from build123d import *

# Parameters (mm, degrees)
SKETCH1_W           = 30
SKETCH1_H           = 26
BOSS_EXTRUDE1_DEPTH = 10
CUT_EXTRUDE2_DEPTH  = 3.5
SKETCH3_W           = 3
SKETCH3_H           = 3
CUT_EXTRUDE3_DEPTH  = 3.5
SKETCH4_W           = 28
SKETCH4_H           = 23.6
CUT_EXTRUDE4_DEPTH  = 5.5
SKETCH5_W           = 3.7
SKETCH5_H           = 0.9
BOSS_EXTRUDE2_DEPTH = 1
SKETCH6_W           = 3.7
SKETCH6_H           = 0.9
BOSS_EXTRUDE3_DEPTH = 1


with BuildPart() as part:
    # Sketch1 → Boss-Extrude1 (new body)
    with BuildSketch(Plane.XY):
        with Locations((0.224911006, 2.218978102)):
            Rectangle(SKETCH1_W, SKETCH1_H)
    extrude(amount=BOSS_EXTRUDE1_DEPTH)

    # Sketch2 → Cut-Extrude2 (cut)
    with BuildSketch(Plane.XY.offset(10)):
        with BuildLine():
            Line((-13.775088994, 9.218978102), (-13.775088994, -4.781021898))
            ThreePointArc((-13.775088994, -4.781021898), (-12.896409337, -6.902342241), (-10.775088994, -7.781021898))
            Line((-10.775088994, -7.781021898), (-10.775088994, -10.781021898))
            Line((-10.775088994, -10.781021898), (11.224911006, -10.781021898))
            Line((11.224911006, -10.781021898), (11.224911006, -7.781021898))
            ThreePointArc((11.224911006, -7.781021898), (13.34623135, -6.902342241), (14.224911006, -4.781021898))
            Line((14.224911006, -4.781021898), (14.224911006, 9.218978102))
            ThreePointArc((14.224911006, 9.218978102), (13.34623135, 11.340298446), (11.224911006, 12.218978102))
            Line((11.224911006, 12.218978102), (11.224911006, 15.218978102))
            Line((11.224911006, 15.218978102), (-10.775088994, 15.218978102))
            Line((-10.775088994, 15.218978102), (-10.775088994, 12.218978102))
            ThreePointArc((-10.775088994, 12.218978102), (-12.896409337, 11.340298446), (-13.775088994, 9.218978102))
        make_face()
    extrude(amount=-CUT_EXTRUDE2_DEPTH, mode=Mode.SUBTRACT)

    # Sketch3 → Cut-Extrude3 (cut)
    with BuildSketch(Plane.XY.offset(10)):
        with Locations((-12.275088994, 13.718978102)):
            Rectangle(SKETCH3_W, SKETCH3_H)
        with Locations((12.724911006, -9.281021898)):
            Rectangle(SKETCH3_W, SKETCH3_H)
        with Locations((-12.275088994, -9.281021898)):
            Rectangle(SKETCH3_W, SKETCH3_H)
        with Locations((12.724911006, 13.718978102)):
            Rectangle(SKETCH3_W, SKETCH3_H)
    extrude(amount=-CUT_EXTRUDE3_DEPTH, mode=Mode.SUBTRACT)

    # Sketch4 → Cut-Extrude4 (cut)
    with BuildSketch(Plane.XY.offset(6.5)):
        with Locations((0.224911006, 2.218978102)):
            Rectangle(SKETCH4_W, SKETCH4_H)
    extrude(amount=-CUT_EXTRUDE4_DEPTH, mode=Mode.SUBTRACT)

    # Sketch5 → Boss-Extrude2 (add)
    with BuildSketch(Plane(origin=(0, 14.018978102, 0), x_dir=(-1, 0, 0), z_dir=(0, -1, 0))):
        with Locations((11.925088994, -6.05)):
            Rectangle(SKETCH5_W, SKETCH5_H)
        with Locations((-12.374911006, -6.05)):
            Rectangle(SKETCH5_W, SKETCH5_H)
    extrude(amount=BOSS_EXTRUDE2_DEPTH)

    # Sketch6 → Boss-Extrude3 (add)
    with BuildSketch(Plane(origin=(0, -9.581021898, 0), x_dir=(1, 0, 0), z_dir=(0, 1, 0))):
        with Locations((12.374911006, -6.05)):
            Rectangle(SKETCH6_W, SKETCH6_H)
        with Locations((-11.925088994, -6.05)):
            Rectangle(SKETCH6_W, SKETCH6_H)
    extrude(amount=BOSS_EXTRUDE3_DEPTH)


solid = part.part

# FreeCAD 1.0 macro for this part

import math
import FreeCAD as App
import Part
import Sketcher
Q = App.Units.Quantity


def add_polygon(sketch, points):
    """Adds a closed chain of lines whose ends are joined by coincident constraints."""
    first, n = sketch.GeometryCount, len(points)
    for a, b in zip(points, points[1:] + points[:1]):
        sketch.addGeometry(Part.LineSegment(App.Vector(*a, 0), App.Vector(*b, 0)), False)
    for i in range(n):
        sketch.addConstraint(Sketcher.Constraint("Coincident", first + i, 2, first + (i + 1) % n, 1))

doc = App.newDocument("Part")
params = doc.addObject("Spreadsheet::Sheet", "Params")
for row, (alias, value) in enumerate([
    ("sketch1_width", "30 mm"),
    ("sketch1_height", "26 mm"),
    ("pad1_length", "10 mm"),
    ("sketch2_radius", "3 mm"),
    ("sketch2_width", "22 mm"),
    ("sketch2_height", "14 mm"),
    ("sketch2_height2", "3 mm"),
    ("pocket1_length", "3.5 mm"),
    ("sketch3_width", "3 mm"),
    ("pocket2_length", "3.5 mm"),
    ("sketch4_width", "28 mm"),
    ("sketch4_height", "23.6 mm"),
    ("pocket3_length", "5.5 mm"),
    ("sketch5_width", "3.7 mm"),
    ("sketch5_height", "0.9 mm"),
    ("pad2_length", "1 mm"),
    ("sketch6_width", "3.7 mm"),
    ("sketch6_height", "0.9 mm"),
    ("pad3_length", "1 mm"),
], start=1):
    params.set(f"A{row}", alias)
    params.set(f"B{row}", "=" + value)
    params.setAlias(f"B{row}", alias)

body = doc.addObject("PartDesign::Body", "Body")

# Sketch on XY plane
sketch1 = body.newObject("Sketcher::SketchObject", "Sketch")
sketch1.AttachmentSupport = (doc.getObject("XY_Plane"), [""])
sketch1.MapMode = "FlatFace"
add_polygon(sketch1, [(-14.775089, 15.218978), (-14.775089, -10.781022), (15.224911, -10.781022), (15.224911, 15.218978)])  # lines 0-3
sketch1.addConstraint(Sketcher.Constraint("Vertical", 0))
sketch1.addConstraint(Sketcher.Constraint("Horizontal", 1))
sketch1.addConstraint(Sketcher.Constraint("Vertical", 2))
sketch1.addConstraint(Sketcher.Constraint("Horizontal", 3))
sketch1.addConstraint(Sketcher.Constraint("DistanceX", 1, 1, 1, 2, Q("30 mm")))
sketch1.addConstraint(Sketcher.Constraint("DistanceY", 0, 2, 0, 1, Q("26 mm")))
sketch1.addConstraint(Sketcher.Constraint("DistanceX", 0, 2, -1, 1, Q("14.775089 mm")))
sketch1.addConstraint(Sketcher.Constraint("DistanceY", 0, 2, -1, 1, Q("10.781022 mm")))
sketch1.setExpression("Constraints[8]", "Params.sketch1_width")
sketch1.setExpression("Constraints[9]", "Params.sketch1_height")
pad1 = body.newObject("PartDesign::Pad", "Pad")
pad1.Profile = sketch1
pad1.setExpression("Length", "Params.pad1_length")

# Sketch on XY plane
sketch2 = body.newObject("Sketcher::SketchObject", "Sketch001")
sketch2.AttachmentSupport = (doc.getObject("XY_Plane"), [""])
sketch2.MapMode = "FlatFace"
sketch2.AttachmentOffset = App.Placement(App.Vector(0, 0, 10), App.Rotation())
sketch2.addGeometry(Part.LineSegment(App.Vector(-13.775089, 9.218978, 0), App.Vector(-13.775089, -4.781022, 0)), False)
sketch2.addGeometry(Part.ArcOfCircle(Part.Circle(App.Vector(-10.775089, -4.781022, 0), App.Vector(0, 0, 1), 3), math.radians(-180), math.radians(-90)), False)
sketch2.addGeometry(Part.LineSegment(App.Vector(-10.775089, -7.781022, 0), App.Vector(-10.775089, -10.781022, 0)), False)
sketch2.addGeometry(Part.LineSegment(App.Vector(-10.775089, -10.781022, 0), App.Vector(11.224911, -10.781022, 0)), False)
sketch2.addGeometry(Part.LineSegment(App.Vector(11.224911, -10.781022, 0), App.Vector(11.224911, -7.781022, 0)), False)
sketch2.addGeometry(Part.ArcOfCircle(Part.Circle(App.Vector(11.224911, -4.781022, 0), App.Vector(0, 0, 1), 3), math.radians(-90), math.radians(0)), False)
sketch2.addGeometry(Part.LineSegment(App.Vector(14.224911, -4.781022, 0), App.Vector(14.224911, 9.218978, 0)), False)
sketch2.addGeometry(Part.ArcOfCircle(Part.Circle(App.Vector(11.224911, 9.218978, 0), App.Vector(0, 0, 1), 3), math.radians(0), math.radians(90)), False)
sketch2.addGeometry(Part.LineSegment(App.Vector(11.224911, 12.218978, 0), App.Vector(11.224911, 15.218978, 0)), False)
sketch2.addGeometry(Part.LineSegment(App.Vector(11.224911, 15.218978, 0), App.Vector(-10.775089, 15.218978, 0)), False)
sketch2.addGeometry(Part.LineSegment(App.Vector(-10.775089, 15.218978, 0), App.Vector(-10.775089, 12.218978, 0)), False)
sketch2.addGeometry(Part.ArcOfCircle(Part.Circle(App.Vector(-10.775089, 9.218978, 0), App.Vector(0, 0, 1), 3), math.radians(90), math.radians(180)), False)
sketch2.addConstraint(Sketcher.Constraint("Tangent", 0, 2, 1, 1))
sketch2.addConstraint(Sketcher.Constraint("Coincident", 1, 2, 2, 1))
sketch2.addConstraint(Sketcher.Constraint("Coincident", 2, 2, 3, 1))
sketch2.addConstraint(Sketcher.Constraint("Coincident", 3, 2, 4, 1))
sketch2.addConstraint(Sketcher.Constraint("Coincident", 4, 2, 5, 1))
sketch2.addConstraint(Sketcher.Constraint("Tangent", 5, 2, 6, 1))
sketch2.addConstraint(Sketcher.Constraint("Tangent", 6, 2, 7, 1))
sketch2.addConstraint(Sketcher.Constraint("Coincident", 7, 2, 8, 1))
sketch2.addConstraint(Sketcher.Constraint("Coincident", 8, 2, 9, 1))
sketch2.addConstraint(Sketcher.Constraint("Coincident", 9, 2, 10, 1))
sketch2.addConstraint(Sketcher.Constraint("Coincident", 10, 2, 11, 1))
sketch2.addConstraint(Sketcher.Constraint("Tangent", 11, 2, 0, 1))
sketch2.addConstraint(Sketcher.Constraint("Vertical", 0))
sketch2.addConstraint(Sketcher.Constraint("Vertical", 2))
sketch2.addConstraint(Sketcher.Constraint("Horizontal", 3))
sketch2.addConstraint(Sketcher.Constraint("Vertical", 4))
sketch2.addConstraint(Sketcher.Constraint("Vertical", 6))
sketch2.addConstraint(Sketcher.Constraint("Vertical", 8))
sketch2.addConstraint(Sketcher.Constraint("Horizontal", 9))
sketch2.addConstraint(Sketcher.Constraint("Vertical", 10))
sketch2.addConstraint(Sketcher.Constraint("Equal", 1, 5))
sketch2.addConstraint(Sketcher.Constraint("Equal", 5, 7))
sketch2.addConstraint(Sketcher.Constraint("Equal", 7, 11))
sketch2.addConstraint(Sketcher.Constraint("Horizontal", 1, 3, 5, 3))
sketch2.addConstraint(Sketcher.Constraint("Horizontal", 7, 3, 11, 3))
sketch2.addConstraint(Sketcher.Constraint("Vertical", 11, 3, 1, 2))
sketch2.addConstraint(Sketcher.Constraint("Vertical", 7, 3, 3, 2))
sketch2.addConstraint(Sketcher.Constraint("Vertical", 4, 2, 7, 2))
sketch2.addConstraint(Sketcher.Constraint("Vertical", 2, 2, 9, 2))
sketch2.addConstraint(Sketcher.Constraint("Equal", 4, 8))
sketch2.addConstraint(Sketcher.Constraint("Radius", 1, Q("3 mm")))
sketch2.addConstraint(Sketcher.Constraint("DistanceX", 3, 1, 3, 2, Q("22 mm")))
sketch2.addConstraint(Sketcher.Constraint("DistanceY", 0, 2, 0, 1, Q("14 mm")))
sketch2.addConstraint(Sketcher.Constraint("DistanceY", 2, 2, 2, 1, Q("3 mm")))
sketch2.addConstraint(Sketcher.Constraint("DistanceX", 1, 3, -1, 1, Q("10.775089 mm")))
sketch2.addConstraint(Sketcher.Constraint("DistanceY", 1, 3, -1, 1, Q("4.781022 mm")))
sketch2.setExpression("Constraints[30]", "Params.sketch2_radius")
sketch2.setExpression("Constraints[31]", "Params.sketch2_width")
sketch2.setExpression("Constraints[32]", "Params.sketch2_height")
sketch2.setExpression("Constraints[33]", "Params.sketch2_height2")
pocket1 = body.newObject("PartDesign::Pocket", "Pocket")
pocket1.Profile = sketch2
pocket1.setExpression("Length", "Params.pocket1_length")

# Sketch on XY plane
sketch3 = body.newObject("Sketcher::SketchObject", "Sketch002")
sketch3.AttachmentSupport = (doc.getObject("XY_Plane"), [""])
sketch3.MapMode = "FlatFace"
sketch3.AttachmentOffset = App.Placement(App.Vector(0, 0, 10), App.Rotation())
add_polygon(sketch3, [(-13.775089, 15.218978), (-13.775089, 12.218978), (-10.775089, 12.218978), (-10.775089, 15.218978)])  # lines 0-3
add_polygon(sketch3, [(11.224911, -7.781022), (11.224911, -10.781022), (14.224911, -10.781022), (14.224911, -7.781022)])  # lines 4-7
add_polygon(sketch3, [(-13.775089, -7.781022), (-13.775089, -10.781022), (-10.775089, -10.781022), (-10.775089, -7.781022)])  # lines 8-11
add_polygon(sketch3, [(11.224911, 15.218978), (11.224911, 12.218978), (14.224911, 12.218978), (14.224911, 15.218978)])  # lines 12-15
sketch3.addConstraint(Sketcher.Constraint("Vertical", 0))
sketch3.addConstraint(Sketcher.Constraint("Horizontal", 1))
sketch3.addConstraint(Sketcher.Constraint("Vertical", 2))
sketch3.addConstraint(Sketcher.Constraint("Horizontal", 3))
sketch3.addConstraint(Sketcher.Constraint("Vertical", 4))
sketch3.addConstraint(Sketcher.Constraint("Horizontal", 5))
sketch3.addConstraint(Sketcher.Constraint("Vertical", 6))
sketch3.addConstraint(Sketcher.Constraint("Horizontal", 7))
sketch3.addConstraint(Sketcher.Constraint("Vertical", 8))
sketch3.addConstraint(Sketcher.Constraint("Horizontal", 9))
sketch3.addConstraint(Sketcher.Constraint("Vertical", 10))
sketch3.addConstraint(Sketcher.Constraint("Horizontal", 11))
sketch3.addConstraint(Sketcher.Constraint("Vertical", 12))
sketch3.addConstraint(Sketcher.Constraint("Horizontal", 13))
sketch3.addConstraint(Sketcher.Constraint("Vertical", 14))
sketch3.addConstraint(Sketcher.Constraint("Horizontal", 15))
sketch3.addConstraint(Sketcher.Constraint("Horizontal", 5, 2, 8, 2))
sketch3.addConstraint(Sketcher.Constraint("Horizontal", 7, 2, 10, 2))
sketch3.addConstraint(Sketcher.Constraint("Horizontal", 1, 2, 12, 2))
sketch3.addConstraint(Sketcher.Constraint("Horizontal", 3, 2, 14, 2))
sketch3.addConstraint(Sketcher.Constraint("Vertical", 3, 2, 8, 2))
sketch3.addConstraint(Sketcher.Constraint("Vertical", 2, 2, 9, 2))
sketch3.addConstraint(Sketcher.Constraint("Vertical", 7, 2, 12, 2))
sketch3.addConstraint(Sketcher.Constraint("Vertical", 6, 2, 13, 2))
sketch3.addConstraint(Sketcher.Constraint("Equal", 3, 5))
sketch3.addConstraint(Sketcher.Constraint("Equal", 15, 0))
sketch3.addConstraint(Sketcher.Constraint("Equal", 2, 4))
sketch3.addConstraint(Sketcher.Constraint("DistanceX", 1, 1, 1, 2, Q("3 mm")))
sketch3.addConstraint(Sketcher.Constraint("DistanceX", 1, 2, 4, 2, Q("22 mm")))
sketch3.addConstraint(Sketcher.Constraint("DistanceY", 4, 2, 1, 2, Q("23 mm")))
sketch3.addConstraint(Sketcher.Constraint("DistanceX", 0, 2, -1, 1, Q("13.775089 mm")))
sketch3.addConstraint(Sketcher.Constraint("DistanceY", -1, 1, 0, 2, Q("12.218978 mm")))
sketch3.setExpression("Constraints[43]", "Params.sketch3_width")
pocket2 = body.newObject("PartDesign::Pocket", "Pocket001")
pocket2.Profile = sketch3
pocket2.setExpression("Length", "Params.pocket2_length")

# Sketch on XY plane
sketch4 = body.newObject("Sketcher::SketchObject", "Sketch003")
sketch4.AttachmentSupport = (doc.getObject("XY_Plane"), [""])
sketch4.MapMode = "FlatFace"
sketch4.AttachmentOffset = App.Placement(App.Vector(0, 0, 6.5), App.Rotation())
add_polygon(sketch4, [(-13.775089, 14.018978), (-13.775089, -9.581022), (14.224911, -9.581022), (14.224911, 14.018978)])  # lines 0-3
sketch4.addConstraint(Sketcher.Constraint("Vertical", 0))
sketch4.addConstraint(Sketcher.Constraint("Horizontal", 1))
sketch4.addConstraint(Sketcher.Constraint("Vertical", 2))
sketch4.addConstraint(Sketcher.Constraint("Horizontal", 3))
sketch4.addConstraint(Sketcher.Constraint("DistanceX", 1, 1, 1, 2, Q("28 mm")))
sketch4.addConstraint(Sketcher.Constraint("DistanceY", 0, 2, 0, 1, Q("23.6 mm")))
sketch4.addConstraint(Sketcher.Constraint("DistanceX", 0, 2, -1, 1, Q("13.775089 mm")))
sketch4.addConstraint(Sketcher.Constraint("DistanceY", 0, 2, -1, 1, Q("9.581022 mm")))
sketch4.setExpression("Constraints[8]", "Params.sketch4_width")
sketch4.setExpression("Constraints[9]", "Params.sketch4_height")
pocket3 = body.newObject("PartDesign::Pocket", "Pocket002")
pocket3.Profile = sketch4
pocket3.setExpression("Length", "Params.pocket3_length")

# Sketch on XZ plane
sketch5 = body.newObject("Sketcher::SketchObject", "Sketch004")
sketch5.AttachmentSupport = (doc.getObject("XZ_Plane"), [""])
sketch5.MapMode = "FlatFace"
sketch5.AttachmentOffset = App.Placement(App.Vector(0, 0, -14.018978), App.Rotation())
add_polygon(sketch5, [(-10.075089, 5.6), (-10.075089, 6.5), (-13.775089, 6.5), (-13.775089, 5.6)])  # lines 0-3
add_polygon(sketch5, [(14.224911, 5.6), (14.224911, 6.5), (10.524911, 6.5), (10.524911, 5.6)])  # lines 4-7
sketch5.addConstraint(Sketcher.Constraint("Vertical", 0))
sketch5.addConstraint(Sketcher.Constraint("Horizontal", 1))
sketch5.addConstraint(Sketcher.Constraint("Vertical", 2))
sketch5.addConstraint(Sketcher.Constraint("Horizontal", 3))
sketch5.addConstraint(Sketcher.Constraint("Vertical", 4))
sketch5.addConstraint(Sketcher.Constraint("Horizontal", 5))
sketch5.addConstraint(Sketcher.Constraint("Vertical", 6))
sketch5.addConstraint(Sketcher.Constraint("Horizontal", 7))
sketch5.addConstraint(Sketcher.Constraint("Horizontal", 1, 2, 4, 2))
sketch5.addConstraint(Sketcher.Constraint("Horizontal", 3, 2, 6, 2))
sketch5.addConstraint(Sketcher.Constraint("Equal", 3, 5))
sketch5.addConstraint(Sketcher.Constraint("DistanceX", 1, 2, 1, 1, Q("3.7 mm")))
sketch5.addConstraint(Sketcher.Constraint("DistanceY", 0, 1, 0, 2, Q("0.9 mm")))
sketch5.addConstraint(Sketcher.Constraint("DistanceX", 1, 2, 4, 2, Q("28 mm")))
sketch5.addConstraint(Sketcher.Constraint("DistanceY", -1, 1, 0, 2, Q("6.5 mm")))
sketch5.addConstraint(Sketcher.Constraint("DistanceX", 0, 2, -1, 1, Q("10.075089 mm")))
sketch5.setExpression("Constraints[19]", "Params.sketch5_width")
sketch5.setExpression("Constraints[20]", "Params.sketch5_height")
pad2 = body.newObject("PartDesign::Pad", "Pad001")
pad2.Profile = sketch5
pad2.setExpression("Length", "Params.pad2_length")

# Sketch on XZ plane
sketch6 = body.newObject("Sketcher::SketchObject", "Sketch005")
sketch6.AttachmentSupport = (doc.getObject("XZ_Plane"), [""])
sketch6.MapMode = "FlatFace"
sketch6.AttachmentOffset = App.Placement(App.Vector(0, 0, 9.581022), App.Rotation())
add_polygon(sketch6, [(10.524911, 5.6), (10.524911, 6.5), (14.224911, 6.5), (14.224911, 5.6)])  # lines 0-3
add_polygon(sketch6, [(-13.775089, 5.6), (-13.775089, 6.5), (-10.075089, 6.5), (-10.075089, 5.6)])  # lines 4-7
sketch6.addConstraint(Sketcher.Constraint("Vertical", 0))
sketch6.addConstraint(Sketcher.Constraint("Horizontal", 1))
sketch6.addConstraint(Sketcher.Constraint("Vertical", 2))
sketch6.addConstraint(Sketcher.Constraint("Horizontal", 3))
sketch6.addConstraint(Sketcher.Constraint("Vertical", 4))
sketch6.addConstraint(Sketcher.Constraint("Horizontal", 5))
sketch6.addConstraint(Sketcher.Constraint("Vertical", 6))
sketch6.addConstraint(Sketcher.Constraint("Horizontal", 7))
sketch6.addConstraint(Sketcher.Constraint("Horizontal", 1, 2, 4, 2))
sketch6.addConstraint(Sketcher.Constraint("Horizontal", 3, 2, 6, 2))
sketch6.addConstraint(Sketcher.Constraint("Equal", 3, 5))
sketch6.addConstraint(Sketcher.Constraint("DistanceX", 1, 1, 1, 2, Q("3.7 mm")))
sketch6.addConstraint(Sketcher.Constraint("DistanceY", 0, 1, 0, 2, Q("0.9 mm")))
sketch6.addConstraint(Sketcher.Constraint("DistanceX", 4, 2, 1, 2, Q("28 mm")))
sketch6.addConstraint(Sketcher.Constraint("DistanceY", -1, 1, 0, 2, Q("6.5 mm")))
sketch6.addConstraint(Sketcher.Constraint("DistanceX", -1, 1, 0, 2, Q("10.524911 mm")))
sketch6.setExpression("Constraints[19]", "Params.sketch6_width")
sketch6.setExpression("Constraints[20]", "Params.sketch6_height")
pad3 = body.newObject("PartDesign::Pad", "Pad002")
pad3.Profile = sketch6
pad3.setExpression("Length", "Params.pad3_length")
pad3.Reversed = True

doc.recompute()
